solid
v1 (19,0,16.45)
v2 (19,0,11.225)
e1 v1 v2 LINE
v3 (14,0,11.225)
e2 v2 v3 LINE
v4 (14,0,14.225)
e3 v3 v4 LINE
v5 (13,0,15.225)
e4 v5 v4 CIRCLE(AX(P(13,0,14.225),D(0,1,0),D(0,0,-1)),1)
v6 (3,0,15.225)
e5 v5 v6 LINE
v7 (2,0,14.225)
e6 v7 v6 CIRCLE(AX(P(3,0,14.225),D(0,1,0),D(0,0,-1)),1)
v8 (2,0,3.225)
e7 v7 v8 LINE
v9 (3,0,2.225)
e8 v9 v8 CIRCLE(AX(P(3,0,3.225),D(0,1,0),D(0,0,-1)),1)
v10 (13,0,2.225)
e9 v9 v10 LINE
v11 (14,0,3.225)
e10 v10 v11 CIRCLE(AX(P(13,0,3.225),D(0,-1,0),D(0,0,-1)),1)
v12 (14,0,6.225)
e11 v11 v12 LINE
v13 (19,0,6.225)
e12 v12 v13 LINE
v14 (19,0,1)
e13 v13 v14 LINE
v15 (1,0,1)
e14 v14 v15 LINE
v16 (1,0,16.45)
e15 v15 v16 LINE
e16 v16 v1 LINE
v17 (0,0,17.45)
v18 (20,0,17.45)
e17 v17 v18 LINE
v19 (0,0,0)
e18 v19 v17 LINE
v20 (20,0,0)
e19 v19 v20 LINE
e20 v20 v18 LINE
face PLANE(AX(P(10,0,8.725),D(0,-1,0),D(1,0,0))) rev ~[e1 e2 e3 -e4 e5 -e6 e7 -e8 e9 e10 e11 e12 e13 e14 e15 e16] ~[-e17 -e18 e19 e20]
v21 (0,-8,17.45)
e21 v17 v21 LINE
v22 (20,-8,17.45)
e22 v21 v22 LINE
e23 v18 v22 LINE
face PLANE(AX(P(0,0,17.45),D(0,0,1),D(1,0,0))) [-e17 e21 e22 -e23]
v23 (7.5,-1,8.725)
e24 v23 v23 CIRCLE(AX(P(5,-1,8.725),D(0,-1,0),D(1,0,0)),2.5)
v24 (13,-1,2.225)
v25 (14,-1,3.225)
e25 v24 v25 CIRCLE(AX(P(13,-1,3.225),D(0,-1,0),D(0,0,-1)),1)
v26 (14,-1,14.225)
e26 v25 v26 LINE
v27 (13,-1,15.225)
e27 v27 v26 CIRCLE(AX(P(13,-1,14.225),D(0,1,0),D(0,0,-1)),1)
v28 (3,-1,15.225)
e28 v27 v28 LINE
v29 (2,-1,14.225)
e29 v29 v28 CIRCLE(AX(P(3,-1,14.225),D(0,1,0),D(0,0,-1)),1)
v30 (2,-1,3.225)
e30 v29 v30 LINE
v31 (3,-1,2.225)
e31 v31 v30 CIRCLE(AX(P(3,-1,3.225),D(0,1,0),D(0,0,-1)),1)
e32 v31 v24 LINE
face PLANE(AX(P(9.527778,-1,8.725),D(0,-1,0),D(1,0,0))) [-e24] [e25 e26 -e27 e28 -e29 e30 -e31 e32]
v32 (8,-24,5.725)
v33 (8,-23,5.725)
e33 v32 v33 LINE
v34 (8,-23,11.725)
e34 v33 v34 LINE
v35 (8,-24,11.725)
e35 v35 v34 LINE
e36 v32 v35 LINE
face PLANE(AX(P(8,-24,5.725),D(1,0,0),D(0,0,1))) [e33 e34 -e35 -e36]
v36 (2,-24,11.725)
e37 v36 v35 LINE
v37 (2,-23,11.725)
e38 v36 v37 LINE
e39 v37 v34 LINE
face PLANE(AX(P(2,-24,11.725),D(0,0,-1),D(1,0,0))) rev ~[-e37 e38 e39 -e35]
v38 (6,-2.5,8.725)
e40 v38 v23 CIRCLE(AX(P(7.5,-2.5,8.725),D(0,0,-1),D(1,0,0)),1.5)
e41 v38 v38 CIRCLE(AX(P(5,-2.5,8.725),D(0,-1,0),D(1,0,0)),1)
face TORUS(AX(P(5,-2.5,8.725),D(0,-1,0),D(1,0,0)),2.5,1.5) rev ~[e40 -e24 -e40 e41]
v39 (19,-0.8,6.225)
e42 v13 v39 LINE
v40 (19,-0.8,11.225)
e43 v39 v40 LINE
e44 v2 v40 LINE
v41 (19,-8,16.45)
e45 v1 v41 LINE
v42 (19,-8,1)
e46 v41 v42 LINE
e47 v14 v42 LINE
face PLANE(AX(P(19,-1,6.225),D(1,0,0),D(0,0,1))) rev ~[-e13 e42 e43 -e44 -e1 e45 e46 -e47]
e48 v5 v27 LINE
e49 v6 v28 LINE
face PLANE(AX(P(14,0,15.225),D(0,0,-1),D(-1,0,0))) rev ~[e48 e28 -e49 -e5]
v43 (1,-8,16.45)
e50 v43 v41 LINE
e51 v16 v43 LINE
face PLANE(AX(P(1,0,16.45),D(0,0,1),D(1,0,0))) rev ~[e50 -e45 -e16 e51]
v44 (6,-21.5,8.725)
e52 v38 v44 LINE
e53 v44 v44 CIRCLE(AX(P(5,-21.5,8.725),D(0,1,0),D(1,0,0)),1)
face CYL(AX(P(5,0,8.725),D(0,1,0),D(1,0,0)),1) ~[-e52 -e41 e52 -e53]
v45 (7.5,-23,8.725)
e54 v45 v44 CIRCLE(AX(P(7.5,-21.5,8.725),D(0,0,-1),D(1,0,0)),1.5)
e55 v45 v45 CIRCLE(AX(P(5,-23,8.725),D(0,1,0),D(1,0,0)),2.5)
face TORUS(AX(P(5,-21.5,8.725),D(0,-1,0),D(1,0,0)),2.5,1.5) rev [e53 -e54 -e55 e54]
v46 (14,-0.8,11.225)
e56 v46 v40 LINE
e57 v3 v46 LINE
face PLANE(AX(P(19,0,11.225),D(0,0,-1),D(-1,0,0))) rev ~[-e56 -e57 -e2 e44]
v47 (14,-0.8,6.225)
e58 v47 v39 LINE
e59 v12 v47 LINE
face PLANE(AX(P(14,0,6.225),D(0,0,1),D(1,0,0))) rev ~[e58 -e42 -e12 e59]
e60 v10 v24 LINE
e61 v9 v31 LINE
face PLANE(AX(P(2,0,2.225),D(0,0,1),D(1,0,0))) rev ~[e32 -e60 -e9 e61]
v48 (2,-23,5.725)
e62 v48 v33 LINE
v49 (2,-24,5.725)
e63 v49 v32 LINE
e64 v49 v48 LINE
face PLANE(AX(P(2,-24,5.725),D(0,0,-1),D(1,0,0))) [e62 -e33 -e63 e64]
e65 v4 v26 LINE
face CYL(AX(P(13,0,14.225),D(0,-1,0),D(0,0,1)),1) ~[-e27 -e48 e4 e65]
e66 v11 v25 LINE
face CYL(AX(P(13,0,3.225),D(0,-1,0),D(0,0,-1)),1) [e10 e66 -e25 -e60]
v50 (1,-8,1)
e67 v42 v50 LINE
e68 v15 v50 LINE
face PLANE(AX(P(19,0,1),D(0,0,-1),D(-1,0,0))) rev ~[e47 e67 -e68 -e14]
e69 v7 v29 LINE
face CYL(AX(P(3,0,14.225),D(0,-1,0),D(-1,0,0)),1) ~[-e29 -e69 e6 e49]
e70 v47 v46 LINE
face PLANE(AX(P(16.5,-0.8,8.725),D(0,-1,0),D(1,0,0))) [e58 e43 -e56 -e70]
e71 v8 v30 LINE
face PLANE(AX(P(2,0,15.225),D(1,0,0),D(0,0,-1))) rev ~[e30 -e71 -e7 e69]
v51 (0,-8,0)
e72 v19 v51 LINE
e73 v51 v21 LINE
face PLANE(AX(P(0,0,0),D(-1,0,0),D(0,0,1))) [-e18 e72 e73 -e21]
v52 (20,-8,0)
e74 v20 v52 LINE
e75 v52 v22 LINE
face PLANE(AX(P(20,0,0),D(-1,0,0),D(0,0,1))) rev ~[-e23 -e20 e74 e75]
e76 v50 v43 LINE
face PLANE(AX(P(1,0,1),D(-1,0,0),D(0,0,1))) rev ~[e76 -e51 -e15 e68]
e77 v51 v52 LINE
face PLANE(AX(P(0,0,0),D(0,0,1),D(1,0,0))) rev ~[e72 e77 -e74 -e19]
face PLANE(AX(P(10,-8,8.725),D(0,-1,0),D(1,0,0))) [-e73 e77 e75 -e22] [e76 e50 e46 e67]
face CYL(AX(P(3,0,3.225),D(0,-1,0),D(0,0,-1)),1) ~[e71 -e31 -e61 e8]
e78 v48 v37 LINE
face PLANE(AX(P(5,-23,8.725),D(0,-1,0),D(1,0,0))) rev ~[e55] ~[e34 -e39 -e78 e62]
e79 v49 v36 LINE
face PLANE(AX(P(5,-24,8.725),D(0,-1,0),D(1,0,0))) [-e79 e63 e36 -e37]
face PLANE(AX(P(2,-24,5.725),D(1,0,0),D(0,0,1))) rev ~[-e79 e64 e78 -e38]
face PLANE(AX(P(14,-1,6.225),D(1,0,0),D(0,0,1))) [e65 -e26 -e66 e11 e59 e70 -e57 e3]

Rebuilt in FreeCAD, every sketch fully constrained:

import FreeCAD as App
import Part
import Sketcher

V = App.Vector
Q = App.Units.Quantity


def edges_at(feature, points):
    """Names of the edges that pass closest to the given points."""
    edges = feature.Shape.Edges
    near = lambda p: min(range(len(edges)), key=lambda i: edges[i].distToShape(Part.Vertex(*p))[0])
    return sorted({f"Edge{near(p) + 1}" for p in points})

doc = App.newDocument("Part")
params = doc.addObject("Spreadsheet::Sheet", "Params")
for row, (alias, value) in enumerate([
    ("sketch1_width", "20 mm"),
    ("sketch1_width2", "18 mm"),
    ("sketch1_height", "17.45 mm"),
    ("pad1_length", "8 mm"),
    ("sketch2_diameter", "2 mm"),
    ("sketch2_width", "5 mm"),
    ("sketch2_width2", "12 mm"),
    ("sketch2_height", "4 mm"),
    ("pad2_length", "1 mm"),
    ("sketch3_diameter", "2 mm"),
    ("pad3_length", "24 mm"),
    ("sketch4_width", "6 mm"),
    ("pad4_length", "1 mm"),
    ("fillet_radius", "1.5 mm"),
    ("sketch5_width", "5 mm"),
    ("pocket1_length", "0.2 mm"),
    ("fillet2_radius", "1 mm"),
], start=1):
    params.set(f"A{row}", alias)
    params.set(f"B{row}", "=" + value)
    params.setAlias(f"B{row}", alias)

body = doc.addObject("PartDesign::Body", "Body")

# Sketch on XZ plane
sketch1 = body.newObject("Sketcher::SketchObject", "Sketch")
sketch1.AttachmentSupport = (doc.getObject("XZ_Plane"), [""])
sketch1.MapMode = "FlatFace"
sketch1.addGeometry(Part.LineSegment(V(0, 17, 0), V(0, 0, 0)), False)
sketch1.addGeometry(Part.LineSegment(V(0, 0, 0), V(20, 0, 0)), False)
sketch1.addGeometry(Part.LineSegment(V(20, 0, 0), V(20, 17, 0)), False)
sketch1.addGeometry(Part.LineSegment(V(20, 17, 0), V(0, 17, 0)), False)
sketch1.addGeometry(Part.LineSegment(V(1, 16, 0), V(19, 16, 0)), False)
sketch1.addGeometry(Part.LineSegment(V(19, 16, 0), V(19, 1, 0)), False)
sketch1.addGeometry(Part.LineSegment(V(19, 1, 0), V(1, 1, 0)), False)
sketch1.addGeometry(Part.LineSegment(V(1, 1, 0), V(1, 16, 0)), False)
sketch1.addConstraint(Sketcher.Constraint("Coincident", 0, 2, 1, 1))
sketch1.addConstraint(Sketcher.Constraint("Coincident", 1, 2, 2, 1))
sketch1.addConstraint(Sketcher.Constraint("Coincident", 2, 2, 3, 1))
sketch1.addConstraint(Sketcher.Constraint("Coincident", 3, 2, 0, 1))
sketch1.addConstraint(Sketcher.Constraint("Coincident", 4, 2, 5, 1))
sketch1.addConstraint(Sketcher.Constraint("Coincident", 5, 2, 6, 1))
sketch1.addConstraint(Sketcher.Constraint("Coincident", 6, 2, 7, 1))
sketch1.addConstraint(Sketcher.Constraint("Coincident", 7, 2, 4, 1))
sketch1.addConstraint(Sketcher.Constraint("Vertical", 0))
sketch1.addConstraint(Sketcher.Constraint("Horizontal", 1))
sketch1.addConstraint(Sketcher.Constraint("Vertical", 2))
sketch1.addConstraint(Sketcher.Constraint("Horizontal", 3))
sketch1.addConstraint(Sketcher.Constraint("Horizontal", 4))
sketch1.addConstraint(Sketcher.Constraint("Vertical", 5))
sketch1.addConstraint(Sketcher.Constraint("Horizontal", 6))
sketch1.addConstraint(Sketcher.Constraint("Vertical", 7))
sketch1.addConstraint(Sketcher.Constraint("Coincident", 0, 2, -1, 1))
sketch1.addConstraint(Sketcher.Constraint("DistanceX", 1, 1, 1, 2, Q("20 mm")))
sketch1.addConstraint(Sketcher.Constraint("DistanceX", 4, 1, 4, 2, Q("18 mm")))
sketch1.addConstraint(Sketcher.Constraint("DistanceX", -1, 1, 4, 2, Q("19 mm")))
sketch1.addConstraint(Sketcher.Constraint("DistanceY", -1, 1, 5, 2, Q("1 mm")))
sketch1.addConstraint(Sketcher.Constraint("DistanceY", 4, 2, 2, 2, Q("1 mm")))
sketch1.addConstraint(Sketcher.Constraint("DistanceY", 0, 2, 0, 1, Q("17.45 mm")))
sketch1.setExpression("Constraints[17]", "Params.sketch1_width")
sketch1.setExpression("Constraints[18]", "Params.sketch1_width2")
sketch1.setExpression("Constraints[22]", "Params.sketch1_height")
pad1 = body.newObject("PartDesign::Pad", "Pad")
pad1.Profile = sketch1
pad1.setExpression("Length", "Params.pad1_length")

# Sketch on XZ plane
sketch2 = body.newObject("Sketcher::SketchObject", "Sketch001")
sketch2.AttachmentSupport = (doc.getObject("XZ_Plane"), [""])
sketch2.MapMode = "FlatFace"
sketch2.addGeometry(Part.LineSegment(V(19, 11.2, 0), V(14, 11.2, 0)), False)
sketch2.addGeometry(Part.LineSegment(V(14, 11.2, 0), V(14, 15.2, 0)), False)
sketch2.addGeometry(Part.LineSegment(V(14, 15.2, 0), V(2, 15.2, 0)), False)
sketch2.addGeometry(Part.LineSegment(V(2, 15.2, 0), V(2, 2.2, 0)), False)
sketch2.addGeometry(Part.LineSegment(V(2, 2.2, 0), V(14, 2.2, 0)), False)
sketch2.addGeometry(Part.LineSegment(V(14, 2.2, 0), V(14, 6.2, 0)), False)
sketch2.addGeometry(Part.LineSegment(V(14, 6.2, 0), V(19, 6.2, 0)), False)
sketch2.addGeometry(Part.LineSegment(V(19, 6.2, 0), V(19, 11.2, 0)), False)
sketch2.addGeometry(Part.Circle(V(5, 8.7, 0), V(0, 0, 1), 1), False)
sketch2.addConstraint(Sketcher.Constraint("Coincident", 0, 2, 1, 1))
sketch2.addConstraint(Sketcher.Constraint("Coincident", 1, 2, 2, 1))
sketch2.addConstraint(Sketcher.Constraint("Coincident", 2, 2, 3, 1))
sketch2.addConstraint(Sketcher.Constraint("Coincident", 3, 2, 4, 1))
sketch2.addConstraint(Sketcher.Constraint("Coincident", 4, 2, 5, 1))
sketch2.addConstraint(Sketcher.Constraint("Coincident", 5, 2, 6, 1))
sketch2.addConstraint(Sketcher.Constraint("Coincident", 6, 2, 7, 1))
sketch2.addConstraint(Sketcher.Constraint("Coincident", 7, 2, 0, 1))
sketch2.addConstraint(Sketcher.Constraint("Horizontal", 0))
sketch2.addConstraint(Sketcher.Constraint("Vertical", 1))
sketch2.addConstraint(Sketcher.Constraint("Horizontal", 2))
sketch2.addConstraint(Sketcher.Constraint("Vertical", 3))
sketch2.addConstraint(Sketcher.Constraint("Horizontal", 4))
sketch2.addConstraint(Sketcher.Constraint("Vertical", 5))
sketch2.addConstraint(Sketcher.Constraint("Horizontal", 6))
sketch2.addConstraint(Sketcher.Constraint("Vertical", 7))
sketch2.addConstraint(Sketcher.Constraint("Vertical", 1, 2, 4, 2))
sketch2.addConstraint(Sketcher.Constraint("Equal", 1, 5))
sketch2.addConstraint(Sketcher.Constraint("Equal", 6, 7))
sketch2.addConstraint(Sketcher.Constraint("Diameter", 8, Q("2 mm")))
sketch2.addConstraint(Sketcher.Constraint("DistanceX", 0, 2, 0, 1, Q("5 mm")))
sketch2.addConstraint(Sketcher.Constraint("DistanceX", 2, 2, 2, 1, Q("12 mm")))
sketch2.addConstraint(Sketcher.Constraint("DistanceY", 1, 1, 1, 2, Q("4 mm")))
sketch2.addConstraint(Sketcher.Constraint("DistanceX", -1, 1, 8, 3, Q("5 mm")))
sketch2.addConstraint(Sketcher.Constraint("DistanceX", -1, 1, 0, 2, Q("14 mm")))
sketch2.addConstraint(Sketcher.Constraint("DistanceY", 8, 3, 0, 2, Q("2.5 mm")))
sketch2.addConstraint(Sketcher.Constraint("DistanceY", -1, 1, 8, 3, Q("8.725 mm")))
sketch2.setExpression("Constraints[19]", "Params.sketch2_diameter")
sketch2.setExpression("Constraints[20]", "Params.sketch2_width")
sketch2.setExpression("Constraints[21]", "Params.sketch2_width2")
sketch2.setExpression("Constraints[22]", "Params.sketch2_height")
pad2 = body.newObject("PartDesign::Pad", "Pad001")
pad2.Profile = sketch2
pad2.setExpression("Length", "Params.pad2_length")

# Sketch on XZ plane
sketch3 = body.newObject("Sketcher::SketchObject", "Sketch002")
sketch3.AttachmentSupport = (doc.getObject("XZ_Plane"), [""])
sketch3.MapMode = "FlatFace"
sketch3.addGeometry(Part.Circle(V(5, 8.7, 0), V(0, 0, 1), 1), False)
sketch3.addConstraint(Sketcher.Constraint("Diameter", 0, Q("2 mm")))
sketch3.addConstraint(Sketcher.Constraint("DistanceX", -1, 1, 0, 3, Q("5 mm")))
sketch3.addConstraint(Sketcher.Constraint("DistanceY", -1, 1, 0, 3, Q("8.725 mm")))
sketch3.setExpression("Constraints[0]", "Params.sketch3_diameter")
pad3 = body.newObject("PartDesign::Pad", "Pad002")
pad3.Profile = sketch3
pad3.setExpression("Length", "Params.pad3_length")

# Sketch on XZ plane
sketch4 = body.newObject("Sketcher::SketchObject", "Sketch003")
sketch4.AttachmentSupport = (doc.getObject("XZ_Plane"), [""])
sketch4.MapMode = "FlatFace"
sketch4.AttachmentOffset = App.Placement(V(0, 0, 24), App.Rotation())
sketch4.addGeometry(Part.LineSegment(V(2, 12, 0), V(2, 6, 0)), False)
sketch4.addGeometry(Part.LineSegment(V(2, 6, 0), V(8, 6, 0)), False)
sketch4.addGeometry(Part.LineSegment(V(8, 6, 0), V(8, 12, 0)), False)
sketch4.addGeometry(Part.LineSegment(V(8, 12, 0), V(2, 12, 0)), False)
sketch4.addConstraint(Sketcher.Constraint("Coincident", 0, 2, 1, 1))
sketch4.addConstraint(Sketcher.Constraint("Coincident", 1, 2, 2, 1))
sketch4.addConstraint(Sketcher.Constraint("Coincident", 2, 2, 3, 1))
sketch4.addConstraint(Sketcher.Constraint("Coincident", 3, 2, 0, 1))
sketch4.addConstraint(Sketcher.Constraint("Vertical", 0))
sketch4.addConstraint(Sketcher.Constraint("Horizontal", 1))
sketch4.addConstraint(Sketcher.Constraint("Vertical", 2))
sketch4.addConstraint(Sketcher.Constraint("Horizontal", 3))
sketch4.addConstraint(Sketcher.Constraint("Equal", 3, 0))
sketch4.addConstraint(Sketcher.Constraint("DistanceX", 1, 1, 1, 2, Q("6 mm")))
sketch4.addConstraint(Sketcher.Constraint("DistanceX", -1, 1, 0, 2, Q("2 mm")))
sketch4.addConstraint(Sketcher.Constraint("DistanceY", -1, 1, 0, 2, Q("5.725 mm")))
sketch4.setExpression("Constraints[9]", "Params.sketch4_width")
pad4 = body.newObject("PartDesign::Pad", "Pad003")
pad4.Profile = sketch4
pad4.setExpression("Length", "Params.pad4_length")
pad4.Reversed = True
doc.recompute()

fillet = body.newObject("PartDesign::Fillet", "Fillet")
fillet.Base = (pad4, edges_at(pad4, [(4, -23, 8.725), (4, -1, 8.725)]))
fillet.setExpression("Radius", "Params.fillet_radius")

# Sketch on XZ plane
sketch5 = body.newObject("Sketcher::SketchObject", "Sketch004")
sketch5.AttachmentSupport = (doc.getObject("XZ_Plane"), [""])
sketch5.MapMode = "FlatFace"
sketch5.AttachmentOffset = App.Placement(V(0, 0, 1), App.Rotation())
sketch5.addGeometry(Part.LineSegment(V(14, 11, 0), V(14, 6, 0)), False)
sketch5.addGeometry(Part.LineSegment(V(14, 6, 0), V(19, 6, 0)), False)
sketch5.addGeometry(Part.LineSegment(V(19, 6, 0), V(19, 11, 0)), False)
sketch5.addGeometry(Part.LineSegment(V(19, 11, 0), V(14, 11, 0)), False)
sketch5.addConstraint(Sketcher.Constraint("Coincident", 0, 2, 1, 1))
sketch5.addConstraint(Sketcher.Constraint("Coincident", 1, 2, 2, 1))
sketch5.addConstraint(Sketcher.Constraint("Coincident", 2, 2, 3, 1))
sketch5.addConstraint(Sketcher.Constraint("Coincident", 3, 2, 0, 1))
sketch5.addConstraint(Sketcher.Constraint("Vertical", 0))
sketch5.addConstraint(Sketcher.Constraint("Horizontal", 1))
sketch5.addConstraint(Sketcher.Constraint("Vertical", 2))
sketch5.addConstraint(Sketcher.Constraint("Horizontal", 3))
sketch5.addConstraint(Sketcher.Constraint("Equal", 3, 0))
sketch5.addConstraint(Sketcher.Constraint("DistanceX", 1, 1, 1, 2, Q("5 mm")))
sketch5.addConstraint(Sketcher.Constraint("DistanceX", -1, 1, 0, 2, Q("14 mm")))
sketch5.addConstraint(Sketcher.Constraint("DistanceY", -1, 1, 0, 2, Q("6.225 mm")))
sketch5.setExpression("Constraints[9]", "Params.sketch5_width")
pocket1 = body.newObject("PartDesign::Pocket", "Pocket")
pocket1.Profile = sketch5
pocket1.setExpression("Length", "Params.pocket1_length")
doc.recompute()

fillet2 = body.newObject("PartDesign::Fillet", "Fillet001")
fillet2.Base = (pocket1, edges_at(pocket1, [
    (2, -0.5, 15.225),
    (14, -0.5, 15.225),
    (2, -0.5, 2.225),
    (14, -0.5, 2.225),
]))
fillet2.setExpression("Radius", "Params.fillet2_radius")

doc.recompute()
